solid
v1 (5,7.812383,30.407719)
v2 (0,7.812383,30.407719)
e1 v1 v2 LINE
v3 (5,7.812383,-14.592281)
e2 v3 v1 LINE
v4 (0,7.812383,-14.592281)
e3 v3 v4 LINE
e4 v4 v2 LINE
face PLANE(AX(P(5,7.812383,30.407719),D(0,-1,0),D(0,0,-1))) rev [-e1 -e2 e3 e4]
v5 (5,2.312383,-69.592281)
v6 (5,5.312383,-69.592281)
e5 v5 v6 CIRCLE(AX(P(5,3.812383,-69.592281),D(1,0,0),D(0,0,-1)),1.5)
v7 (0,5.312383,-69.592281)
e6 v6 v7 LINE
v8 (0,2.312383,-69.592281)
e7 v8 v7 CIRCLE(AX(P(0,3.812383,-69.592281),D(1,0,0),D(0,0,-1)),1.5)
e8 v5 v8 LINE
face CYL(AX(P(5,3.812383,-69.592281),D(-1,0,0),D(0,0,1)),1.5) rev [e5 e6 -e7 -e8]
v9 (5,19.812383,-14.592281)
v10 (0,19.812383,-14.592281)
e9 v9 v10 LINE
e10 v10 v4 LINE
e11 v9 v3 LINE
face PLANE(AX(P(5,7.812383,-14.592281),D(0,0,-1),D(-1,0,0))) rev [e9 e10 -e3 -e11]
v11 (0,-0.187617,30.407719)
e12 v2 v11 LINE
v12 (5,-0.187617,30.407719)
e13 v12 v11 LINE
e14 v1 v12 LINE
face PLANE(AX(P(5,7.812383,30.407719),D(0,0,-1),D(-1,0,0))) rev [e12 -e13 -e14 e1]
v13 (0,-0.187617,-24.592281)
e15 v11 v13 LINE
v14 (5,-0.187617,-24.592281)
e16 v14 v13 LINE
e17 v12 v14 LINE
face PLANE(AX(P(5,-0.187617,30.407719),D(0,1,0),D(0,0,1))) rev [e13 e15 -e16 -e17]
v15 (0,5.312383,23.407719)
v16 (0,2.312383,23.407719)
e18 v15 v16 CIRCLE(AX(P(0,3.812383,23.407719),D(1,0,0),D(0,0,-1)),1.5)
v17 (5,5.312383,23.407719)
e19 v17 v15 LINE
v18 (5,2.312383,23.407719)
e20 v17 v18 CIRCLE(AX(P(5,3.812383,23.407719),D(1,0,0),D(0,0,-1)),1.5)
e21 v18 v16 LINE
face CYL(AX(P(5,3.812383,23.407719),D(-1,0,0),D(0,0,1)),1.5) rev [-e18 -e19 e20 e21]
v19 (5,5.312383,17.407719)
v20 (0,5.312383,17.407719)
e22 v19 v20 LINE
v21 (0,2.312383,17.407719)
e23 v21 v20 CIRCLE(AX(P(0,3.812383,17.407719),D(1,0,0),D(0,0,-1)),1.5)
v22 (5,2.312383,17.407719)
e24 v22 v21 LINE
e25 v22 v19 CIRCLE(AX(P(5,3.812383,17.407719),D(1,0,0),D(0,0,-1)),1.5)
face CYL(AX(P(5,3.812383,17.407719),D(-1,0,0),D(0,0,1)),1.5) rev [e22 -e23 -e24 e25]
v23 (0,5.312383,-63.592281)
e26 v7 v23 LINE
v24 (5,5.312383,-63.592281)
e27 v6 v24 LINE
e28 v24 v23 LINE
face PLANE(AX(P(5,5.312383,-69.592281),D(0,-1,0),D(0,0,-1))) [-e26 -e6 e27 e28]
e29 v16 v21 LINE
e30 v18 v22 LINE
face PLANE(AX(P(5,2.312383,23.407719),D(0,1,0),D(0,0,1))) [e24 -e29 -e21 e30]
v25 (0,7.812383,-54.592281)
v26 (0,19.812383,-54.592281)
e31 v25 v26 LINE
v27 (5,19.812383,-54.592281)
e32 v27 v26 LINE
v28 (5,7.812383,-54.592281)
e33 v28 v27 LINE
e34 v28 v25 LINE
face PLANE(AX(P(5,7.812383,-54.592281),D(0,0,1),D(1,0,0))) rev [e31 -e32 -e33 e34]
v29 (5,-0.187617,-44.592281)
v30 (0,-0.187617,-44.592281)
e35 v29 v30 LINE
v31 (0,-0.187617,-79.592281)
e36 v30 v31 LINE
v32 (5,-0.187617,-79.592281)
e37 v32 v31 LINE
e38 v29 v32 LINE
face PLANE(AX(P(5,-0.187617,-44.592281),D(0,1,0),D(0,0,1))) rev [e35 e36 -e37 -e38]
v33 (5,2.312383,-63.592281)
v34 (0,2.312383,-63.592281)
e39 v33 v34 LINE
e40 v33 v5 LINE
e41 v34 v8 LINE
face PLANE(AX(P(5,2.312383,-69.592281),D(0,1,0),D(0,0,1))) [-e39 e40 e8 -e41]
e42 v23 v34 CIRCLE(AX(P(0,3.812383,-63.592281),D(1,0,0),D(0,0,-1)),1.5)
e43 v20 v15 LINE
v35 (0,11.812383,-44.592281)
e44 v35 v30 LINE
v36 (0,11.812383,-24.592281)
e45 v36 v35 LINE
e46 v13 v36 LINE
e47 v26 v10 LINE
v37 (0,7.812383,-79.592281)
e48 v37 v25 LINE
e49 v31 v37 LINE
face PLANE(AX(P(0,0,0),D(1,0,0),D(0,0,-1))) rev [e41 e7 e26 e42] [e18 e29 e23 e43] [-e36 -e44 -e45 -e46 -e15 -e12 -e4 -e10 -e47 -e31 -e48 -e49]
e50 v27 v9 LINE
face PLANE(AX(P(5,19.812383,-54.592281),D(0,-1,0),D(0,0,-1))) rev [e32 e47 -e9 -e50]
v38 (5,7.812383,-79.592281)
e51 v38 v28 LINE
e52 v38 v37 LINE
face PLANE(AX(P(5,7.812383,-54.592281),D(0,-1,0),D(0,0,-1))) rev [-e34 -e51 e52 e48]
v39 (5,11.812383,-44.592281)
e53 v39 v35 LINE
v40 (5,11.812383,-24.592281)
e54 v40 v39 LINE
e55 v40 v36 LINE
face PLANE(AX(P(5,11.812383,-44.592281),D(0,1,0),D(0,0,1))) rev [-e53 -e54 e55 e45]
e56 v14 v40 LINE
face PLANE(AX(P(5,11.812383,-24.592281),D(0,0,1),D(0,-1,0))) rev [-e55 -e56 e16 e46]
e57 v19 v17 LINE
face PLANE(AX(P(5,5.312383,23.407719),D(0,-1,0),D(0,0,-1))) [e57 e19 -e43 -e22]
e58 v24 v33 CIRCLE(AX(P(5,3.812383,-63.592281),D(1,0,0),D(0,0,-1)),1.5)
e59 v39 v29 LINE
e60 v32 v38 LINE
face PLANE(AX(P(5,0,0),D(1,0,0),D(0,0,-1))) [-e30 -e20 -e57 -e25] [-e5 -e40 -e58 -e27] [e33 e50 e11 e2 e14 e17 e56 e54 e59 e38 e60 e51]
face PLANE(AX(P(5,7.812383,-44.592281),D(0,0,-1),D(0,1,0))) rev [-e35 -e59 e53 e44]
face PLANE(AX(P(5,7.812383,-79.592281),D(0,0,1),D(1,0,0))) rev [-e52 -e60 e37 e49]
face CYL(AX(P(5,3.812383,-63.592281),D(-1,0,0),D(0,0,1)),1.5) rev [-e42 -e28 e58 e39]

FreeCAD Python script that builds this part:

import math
import FreeCAD as App
import Part
import Sketcher
from FreeCAD import Vector

doc = App.newDocument("Part")
params = doc.addObject("Spreadsheet::Sheet", "Params")
for row, (alias, value) in enumerate([
    ("sketch1_radius", "1.5 mm"),
    ("sketch1_width", "8 mm"),
    ("sketch1_width2", "12 mm"),
    ("sketch1_height", "45 mm"),
    ("sketch1_height2", "55 mm"),
    ("pad1_length", "5 mm"),
], start=1):
    params.set(f"A{row}", alias)
    params.set(f"B{row}", "=" + value)
    params.setAlias(f"B{row}", alias)

body = doc.addObject("PartDesign::Body", "Body")

sketch1 = doc.addObject("Sketcher::SketchObject", "Sketch")
body.addObject(sketch1)
sketch1.AttachmentSupport = (doc.YZ_Plane, [""])
sketch1.MapMode = "FlatFace"
sketch1.addGeometry([
    Part.LineSegment(Vector(7.8, -14.6, 0), Vector(7.8, 30.4, 0)),
    Part.LineSegment(Vector(7.8, 30.4, 0), Vector(-0.2, 30.4, 0)),
    Part.LineSegment(Vector(-0.2, 30.4, 0), Vector(-0.2, -24.6, 0)),
    Part.LineSegment(Vector(-0.2, -24.6, 0), Vector(11.8, -24.6, 0)),
    Part.LineSegment(Vector(11.8, -24.6, 0), Vector(11.8, -44.6, 0)),
    Part.LineSegment(Vector(11.8, -44.6, 0), Vector(-0.2, -44.6, 0)),
    Part.LineSegment(Vector(-0.2, -44.6, 0), Vector(-0.2, -79.6, 0)),
    Part.LineSegment(Vector(-0.2, -79.6, 0), Vector(7.8, -79.6, 0)),
    Part.LineSegment(Vector(7.8, -79.6, 0), Vector(7.8, -54.6, 0)),
    Part.LineSegment(Vector(7.8, -54.6, 0), Vector(19.8, -54.6, 0)),
    Part.LineSegment(Vector(19.8, -54.6, 0), Vector(19.8, -14.6, 0)),
    Part.LineSegment(Vector(19.8, -14.6, 0), Vector(7.8, -14.6, 0)),
    Part.LineSegment(Vector(2.3, -69.6, 0), Vector(2.3, -63.6, 0)),
    Part.ArcOfCircle(Part.Circle(Vector(3.8, -63.6, 0), Vector(0, 0, 1), 1.5), math.radians(0), math.radians(180)),
    Part.LineSegment(Vector(5.3, -63.6, 0), Vector(5.3, -69.6, 0)),
    Part.ArcOfCircle(Part.Circle(Vector(3.8, -69.6, 0), Vector(0, 0, 1), 1.5), math.radians(180), math.radians(360)),
    Part.LineSegment(Vector(5.3, 23.4, 0), Vector(5.3, 17.4, 0)),
    Part.ArcOfCircle(Part.Circle(Vector(3.8, 17.4, 0), Vector(0, 0, 1), 1.5), math.radians(180), math.radians(360)),
    Part.LineSegment(Vector(2.3, 17.4, 0), Vector(2.3, 23.4, 0)),
    Part.ArcOfCircle(Part.Circle(Vector(3.8, 23.4, 0), Vector(0, 0, 1), 1.5), math.radians(0), math.radians(180)),
], False)
sketch1.addConstraint([
    Sketcher.Constraint("Coincident", 0, 2, 1, 1),
    Sketcher.Constraint("Coincident", 1, 2, 2, 1),
    Sketcher.Constraint("Coincident", 2, 2, 3, 1),
    Sketcher.Constraint("Coincident", 3, 2, 4, 1),
    Sketcher.Constraint("Coincident", 4, 2, 5, 1),
    Sketcher.Constraint("Coincident", 5, 2, 6, 1),
    Sketcher.Constraint("Coincident", 6, 2, 7, 1),
    Sketcher.Constraint("Coincident", 7, 2, 8, 1),
    Sketcher.Constraint("Coincident", 8, 2, 9, 1),
    Sketcher.Constraint("Coincident", 9, 2, 10, 1),
    Sketcher.Constraint("Coincident", 10, 2, 11, 1),
    Sketcher.Constraint("Coincident", 11, 2, 0, 1),
    Sketcher.Constraint("Tangent", 12, 2, 13, 2),
    Sketcher.Constraint("Tangent", 13, 1, 14, 1),
    Sketcher.Constraint("Tangent", 14, 2, 15, 2),
    Sketcher.Constraint("Tangent", 15, 1, 12, 1),
    Sketcher.Constraint("Tangent", 16, 2, 17, 2),
    Sketcher.Constraint("Tangent", 17, 1, 18, 1),
    Sketcher.Constraint("Tangent", 18, 2, 19, 2),
    Sketcher.Constraint("Tangent", 19, 1, 16, 1),
    Sketcher.Constraint("Vertical", 0),
    Sketcher.Constraint("Horizontal", 1),
    Sketcher.Constraint("Vertical", 2),
    Sketcher.Constraint("Horizontal", 3),
    Sketcher.Constraint("Vertical", 4),
    Sketcher.Constraint("Horizontal", 5),
    Sketcher.Constraint("Vertical", 6),
    Sketcher.Constraint("Horizontal", 7),
    Sketcher.Constraint("Vertical", 8),
    Sketcher.Constraint("Horizontal", 9),
    Sketcher.Constraint("Vertical", 10),
    Sketcher.Constraint("Horizontal", 11),
    Sketcher.Constraint("Vertical", 12),
    Sketcher.Constraint("Vertical", 14),
    Sketcher.Constraint("Vertical", 16),
    Sketcher.Constraint("Vertical", 18),
    Sketcher.Constraint("Equal", 15, 17),
    Sketcher.Constraint("Vertical", 15, 3, 17, 3),
    Sketcher.Constraint("Vertical", 2, 2, 5, 2),
    Sketcher.Constraint("Vertical", 0, 2, 7, 2),
    Sketcher.Constraint("Equal", 5, 9),
    Sketcher.Constraint("Equal", 14, 16),
    Sketcher.Constraint("Radius", 13, 1.5),
    Sketcher.Constraint("DistanceX", 1, 2, 1, 1, 8.0),
    Sketcher.Constraint("DistanceX", 3, 1, 3, 2, 12.0),
    Sketcher.Constraint("DistanceY", 0, 1, 0, 2, 45.0),
    Sketcher.Constraint("DistanceY", 2, 2, 2, 1, 55.0),
    Sketcher.Constraint("DistanceY", 4, 2, 4, 1, 20.0),
    Sketcher.Constraint("DistanceY", 6, 2, 6, 1, 35.0),
    Sketcher.Constraint("DistanceY", 8, 1, 8, 2, 25.0),
    Sketcher.Constraint("DistanceY", 12, 1, 12, 2, 6.0),
    Sketcher.Constraint("DistanceY", 13, 3, 17, 3, 81.0),
    Sketcher.Constraint("DistanceX", 19, 3, 0, 2, 4.0),
    Sketcher.Constraint("DistanceY", 19, 3, 0, 2, 7.0),
    Sketcher.Constraint("DistanceY", 13, 3, -1, 1, 63.592281),
    Sketcher.Constraint("DistanceX", -1, 1, 13, 3, 3.812383),
])
sketch1.setExpression("Constraints[42]", "Params.sketch1_radius")
sketch1.setExpression("Constraints[43]", "Params.sketch1_width")
sketch1.setExpression("Constraints[44]", "Params.sketch1_width2")
sketch1.setExpression("Constraints[45]", "Params.sketch1_height")
sketch1.setExpression("Constraints[46]", "Params.sketch1_height2")
pad1 = doc.addObject("PartDesign::Pad", "Pad")
body.addObject(pad1)
pad1.Profile = sketch1
pad1.setExpression("Length", "Params.pad1_length")

doc.recompute()
